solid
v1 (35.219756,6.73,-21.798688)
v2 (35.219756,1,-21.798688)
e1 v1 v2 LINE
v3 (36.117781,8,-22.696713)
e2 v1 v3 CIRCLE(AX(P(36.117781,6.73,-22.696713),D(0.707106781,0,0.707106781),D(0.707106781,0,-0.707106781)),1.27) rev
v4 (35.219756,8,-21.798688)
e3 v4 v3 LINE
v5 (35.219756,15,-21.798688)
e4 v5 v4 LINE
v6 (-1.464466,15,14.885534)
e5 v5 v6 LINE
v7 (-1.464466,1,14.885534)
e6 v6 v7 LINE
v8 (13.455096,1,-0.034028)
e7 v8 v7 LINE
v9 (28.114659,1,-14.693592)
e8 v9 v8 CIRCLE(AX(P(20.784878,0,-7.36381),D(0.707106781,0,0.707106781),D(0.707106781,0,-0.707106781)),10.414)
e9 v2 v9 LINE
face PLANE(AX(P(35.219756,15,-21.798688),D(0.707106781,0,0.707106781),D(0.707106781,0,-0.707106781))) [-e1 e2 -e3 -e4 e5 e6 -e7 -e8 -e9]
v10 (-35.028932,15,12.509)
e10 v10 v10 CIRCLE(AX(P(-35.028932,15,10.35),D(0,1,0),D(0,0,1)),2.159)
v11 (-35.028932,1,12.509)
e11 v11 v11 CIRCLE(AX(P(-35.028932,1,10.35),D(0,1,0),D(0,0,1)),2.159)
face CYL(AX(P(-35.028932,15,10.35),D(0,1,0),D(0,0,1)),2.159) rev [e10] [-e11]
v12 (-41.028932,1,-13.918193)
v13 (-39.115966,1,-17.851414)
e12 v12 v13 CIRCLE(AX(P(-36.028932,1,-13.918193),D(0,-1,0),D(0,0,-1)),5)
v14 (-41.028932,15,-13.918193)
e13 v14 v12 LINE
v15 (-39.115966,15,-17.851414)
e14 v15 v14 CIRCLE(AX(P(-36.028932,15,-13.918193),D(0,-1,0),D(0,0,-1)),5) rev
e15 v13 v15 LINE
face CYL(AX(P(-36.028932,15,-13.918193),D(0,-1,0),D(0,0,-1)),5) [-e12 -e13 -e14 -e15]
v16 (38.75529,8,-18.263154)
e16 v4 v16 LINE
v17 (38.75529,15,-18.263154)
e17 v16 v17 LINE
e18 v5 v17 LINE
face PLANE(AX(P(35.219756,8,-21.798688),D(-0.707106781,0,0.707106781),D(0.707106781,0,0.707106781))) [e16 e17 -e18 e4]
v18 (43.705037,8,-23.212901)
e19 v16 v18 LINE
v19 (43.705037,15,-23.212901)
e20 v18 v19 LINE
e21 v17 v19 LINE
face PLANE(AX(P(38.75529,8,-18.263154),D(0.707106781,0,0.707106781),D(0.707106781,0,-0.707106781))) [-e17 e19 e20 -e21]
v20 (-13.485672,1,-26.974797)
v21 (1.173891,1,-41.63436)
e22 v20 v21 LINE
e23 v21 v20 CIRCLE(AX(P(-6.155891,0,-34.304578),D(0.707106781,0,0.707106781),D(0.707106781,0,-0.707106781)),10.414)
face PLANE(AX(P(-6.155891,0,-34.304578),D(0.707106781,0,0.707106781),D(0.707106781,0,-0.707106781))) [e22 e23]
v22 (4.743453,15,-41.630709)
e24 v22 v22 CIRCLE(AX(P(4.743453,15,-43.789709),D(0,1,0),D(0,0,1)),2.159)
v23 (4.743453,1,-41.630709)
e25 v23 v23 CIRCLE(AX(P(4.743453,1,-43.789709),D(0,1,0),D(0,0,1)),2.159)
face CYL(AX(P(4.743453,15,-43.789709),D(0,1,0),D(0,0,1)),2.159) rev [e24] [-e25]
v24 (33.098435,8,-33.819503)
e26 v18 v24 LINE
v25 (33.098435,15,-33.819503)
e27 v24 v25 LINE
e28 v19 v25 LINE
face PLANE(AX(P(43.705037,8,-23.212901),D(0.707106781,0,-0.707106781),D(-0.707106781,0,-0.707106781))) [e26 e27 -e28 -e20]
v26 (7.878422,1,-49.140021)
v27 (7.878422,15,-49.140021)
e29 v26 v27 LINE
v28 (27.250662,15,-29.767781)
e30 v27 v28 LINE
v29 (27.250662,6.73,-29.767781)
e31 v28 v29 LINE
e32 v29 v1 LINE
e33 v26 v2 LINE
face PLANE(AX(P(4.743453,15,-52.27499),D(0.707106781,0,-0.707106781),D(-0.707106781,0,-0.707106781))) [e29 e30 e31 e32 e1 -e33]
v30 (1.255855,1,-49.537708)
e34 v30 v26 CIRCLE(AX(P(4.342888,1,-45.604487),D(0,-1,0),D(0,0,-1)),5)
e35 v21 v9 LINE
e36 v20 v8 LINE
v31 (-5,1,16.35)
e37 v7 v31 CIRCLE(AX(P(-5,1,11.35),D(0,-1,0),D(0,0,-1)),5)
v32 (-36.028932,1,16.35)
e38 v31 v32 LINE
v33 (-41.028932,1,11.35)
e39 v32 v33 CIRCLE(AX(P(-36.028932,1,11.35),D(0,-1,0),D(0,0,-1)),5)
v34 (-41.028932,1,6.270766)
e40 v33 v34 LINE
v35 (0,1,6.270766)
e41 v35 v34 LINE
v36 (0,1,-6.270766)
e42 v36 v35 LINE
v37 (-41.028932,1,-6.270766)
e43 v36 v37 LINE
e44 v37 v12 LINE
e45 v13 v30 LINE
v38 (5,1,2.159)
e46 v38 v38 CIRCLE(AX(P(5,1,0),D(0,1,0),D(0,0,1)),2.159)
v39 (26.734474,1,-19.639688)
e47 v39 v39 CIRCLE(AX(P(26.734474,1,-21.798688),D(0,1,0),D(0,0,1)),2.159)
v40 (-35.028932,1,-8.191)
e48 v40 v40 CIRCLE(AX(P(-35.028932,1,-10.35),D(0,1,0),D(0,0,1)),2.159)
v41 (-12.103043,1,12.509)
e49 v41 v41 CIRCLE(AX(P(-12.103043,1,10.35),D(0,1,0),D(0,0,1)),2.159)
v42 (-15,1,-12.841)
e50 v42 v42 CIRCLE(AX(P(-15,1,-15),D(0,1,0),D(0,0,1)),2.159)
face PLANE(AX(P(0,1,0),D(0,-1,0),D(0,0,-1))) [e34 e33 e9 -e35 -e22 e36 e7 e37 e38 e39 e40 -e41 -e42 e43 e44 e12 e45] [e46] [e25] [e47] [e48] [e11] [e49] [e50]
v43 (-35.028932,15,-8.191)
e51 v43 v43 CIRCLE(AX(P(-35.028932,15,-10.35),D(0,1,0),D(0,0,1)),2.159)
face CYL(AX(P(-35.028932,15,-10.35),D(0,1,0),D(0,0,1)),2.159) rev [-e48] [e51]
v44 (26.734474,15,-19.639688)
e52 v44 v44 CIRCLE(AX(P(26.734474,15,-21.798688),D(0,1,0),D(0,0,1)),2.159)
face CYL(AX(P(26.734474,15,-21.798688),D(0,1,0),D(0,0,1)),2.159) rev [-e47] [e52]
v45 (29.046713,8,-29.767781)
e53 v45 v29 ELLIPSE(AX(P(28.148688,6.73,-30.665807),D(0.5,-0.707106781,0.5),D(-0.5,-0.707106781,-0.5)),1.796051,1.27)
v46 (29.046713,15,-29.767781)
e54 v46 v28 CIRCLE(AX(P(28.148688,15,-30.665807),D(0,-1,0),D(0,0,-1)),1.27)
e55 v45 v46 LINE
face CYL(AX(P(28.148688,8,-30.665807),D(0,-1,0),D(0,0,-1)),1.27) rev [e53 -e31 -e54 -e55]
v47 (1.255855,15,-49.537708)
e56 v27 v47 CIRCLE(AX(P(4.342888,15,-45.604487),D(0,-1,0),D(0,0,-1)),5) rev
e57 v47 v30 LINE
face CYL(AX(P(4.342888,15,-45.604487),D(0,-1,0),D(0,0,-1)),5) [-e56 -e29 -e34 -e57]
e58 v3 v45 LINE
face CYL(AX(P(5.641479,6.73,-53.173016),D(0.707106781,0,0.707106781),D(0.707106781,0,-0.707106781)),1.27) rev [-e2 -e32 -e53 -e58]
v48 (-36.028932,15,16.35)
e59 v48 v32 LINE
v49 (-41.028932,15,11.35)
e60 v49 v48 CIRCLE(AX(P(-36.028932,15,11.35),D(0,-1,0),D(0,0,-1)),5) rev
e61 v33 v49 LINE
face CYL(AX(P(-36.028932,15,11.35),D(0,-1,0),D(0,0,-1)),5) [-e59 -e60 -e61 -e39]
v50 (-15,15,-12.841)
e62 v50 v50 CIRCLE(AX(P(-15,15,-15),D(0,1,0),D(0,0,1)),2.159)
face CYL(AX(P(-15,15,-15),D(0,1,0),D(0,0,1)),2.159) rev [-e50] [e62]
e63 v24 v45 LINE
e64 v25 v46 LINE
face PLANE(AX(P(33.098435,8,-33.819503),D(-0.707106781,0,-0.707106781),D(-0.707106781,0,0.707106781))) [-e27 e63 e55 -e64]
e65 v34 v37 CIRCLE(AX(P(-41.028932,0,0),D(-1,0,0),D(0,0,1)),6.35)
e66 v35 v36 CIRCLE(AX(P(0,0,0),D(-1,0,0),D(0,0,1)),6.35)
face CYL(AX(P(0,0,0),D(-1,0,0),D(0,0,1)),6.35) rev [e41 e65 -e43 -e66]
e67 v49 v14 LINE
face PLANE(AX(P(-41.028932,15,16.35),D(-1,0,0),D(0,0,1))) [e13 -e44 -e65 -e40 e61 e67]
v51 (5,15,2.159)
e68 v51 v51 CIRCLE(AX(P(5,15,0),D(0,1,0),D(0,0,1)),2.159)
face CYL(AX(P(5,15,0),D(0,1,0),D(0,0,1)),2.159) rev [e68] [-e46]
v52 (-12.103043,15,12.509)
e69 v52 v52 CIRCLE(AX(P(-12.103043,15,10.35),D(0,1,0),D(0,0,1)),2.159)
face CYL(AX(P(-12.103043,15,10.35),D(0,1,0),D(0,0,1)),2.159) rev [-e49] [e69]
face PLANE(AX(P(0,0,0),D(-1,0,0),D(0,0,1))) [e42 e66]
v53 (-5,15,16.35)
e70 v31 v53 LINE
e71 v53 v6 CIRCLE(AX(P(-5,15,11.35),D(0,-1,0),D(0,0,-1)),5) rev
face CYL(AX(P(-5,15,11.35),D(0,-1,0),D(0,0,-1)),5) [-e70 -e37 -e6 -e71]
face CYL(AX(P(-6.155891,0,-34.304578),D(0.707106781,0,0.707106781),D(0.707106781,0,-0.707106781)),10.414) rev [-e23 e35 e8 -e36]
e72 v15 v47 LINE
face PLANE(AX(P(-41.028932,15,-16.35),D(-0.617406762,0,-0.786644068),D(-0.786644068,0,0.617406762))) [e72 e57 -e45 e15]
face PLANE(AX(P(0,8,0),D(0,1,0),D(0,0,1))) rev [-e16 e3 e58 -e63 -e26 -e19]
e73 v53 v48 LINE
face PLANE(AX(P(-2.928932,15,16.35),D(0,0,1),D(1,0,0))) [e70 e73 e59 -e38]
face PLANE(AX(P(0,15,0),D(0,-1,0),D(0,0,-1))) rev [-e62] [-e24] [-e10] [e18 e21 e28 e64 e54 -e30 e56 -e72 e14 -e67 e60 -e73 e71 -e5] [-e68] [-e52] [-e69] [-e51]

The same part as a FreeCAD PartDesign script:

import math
import FreeCAD as App
import Part
import Sketcher

V = App.Vector
Q = App.Units.Quantity


def edges_at(feature, points):
    """Names of the edges that pass closest to the given points."""
    edges = feature.Shape.Edges
    near = lambda p: min(range(len(edges)), key=lambda i: edges[i].distToShape(Part.Vertex(*p))[0])
    return sorted({f"Edge{near(p) + 1}" for p in points})

doc = App.newDocument("Part")
body = doc.addObject("PartDesign::Body", "Body")

# Sketch on XZ plane
sketch1 = body.newObject("Sketcher::SketchObject", "Sketch")
sketch1.AttachmentSupport = (doc.getObject("XZ_Plane"), [""])
sketch1.MapMode = "FlatFace"
sketch1.AttachmentOffset = App.Placement(V(0, 0, -1), App.Rotation())
sketch1.addGeometry([
    Part.LineSegment(V(5, -52, 0), V(35, -22, 0)),  # 0
    Part.LineSegment(V(35, -22, 0), V(-3, 16, 0)),  # 1
    Part.LineSegment(V(-3, 16, 0), V(-41, 16, 0)),  # 2
    Part.LineSegment(V(-41, 16, 0), V(-41, -16, 0)),  # 3
    Part.LineSegment(V(-41, -16, 0), V(5, -52, 0)),  # 4
], False)
sketch1.addConstraint([
    Sketcher.Constraint("Coincident", 0, 2, 1, 1),
    Sketcher.Constraint("Coincident", 1, 2, 2, 1),
    Sketcher.Constraint("Coincident", 2, 2, 3, 1),
    Sketcher.Constraint("Coincident", 3, 2, 4, 1),
    Sketcher.Constraint("Coincident", 4, 2, 0, 1),
    Sketcher.Constraint("Horizontal", 2),
    Sketcher.Constraint("Vertical", 3),
    Sketcher.Constraint("Perpendicular", 0, 1),
    Sketcher.Constraint("Angle", 0, Q("45 deg")),
    Sketcher.Constraint("DistanceX", 2, 2, 2, 1, Q("38.1 mm")),
    Sketcher.Constraint("DistanceY", 3, 2, 3, 1, Q("32.7 mm")),
    Sketcher.Constraint("Distance", 0, Q("43.1 mm")),
    Sketcher.Constraint("DistanceY", -1, 1, 1, 2, Q("16.35 mm")),
    Sketcher.Constraint("Distance", 1, Q("53.950392 mm")),
    Sketcher.Constraint("DistanceX", -1, 1, 0, 2, Q("35.219756 mm")),
])
pad1 = body.newObject("PartDesign::Pad", "Pad")
pad1.Profile = sketch1
pad1.Length = 14
pad1.Reversed = True

# Sketch on XZ plane
sketch2 = body.newObject("Sketcher::SketchObject", "Sketch001")
sketch2.AttachmentSupport = (doc.getObject("XZ_Plane"), [""])
sketch2.MapMode = "FlatFace"
sketch2.AttachmentOffset = App.Placement(V(0, 0, -15), App.Rotation())
sketch2.addGeometry([
    Part.LineSegment(V(39, -18, 0), V(44, -23, 0)),
    Part.LineSegment(V(44, -23, 0), V(33, -34, 0)),
    Part.LineSegment(V(33, -34, 0), V(28, -29, 0)),
    Part.LineSegment(V(28, -29, 0), V(39, -18, 0)),
], False)
sketch2.addConstraint([
    Sketcher.Constraint("Coincident", 0, 2, 1, 1),
    Sketcher.Constraint("Coincident", 1, 2, 2, 1),
    Sketcher.Constraint("Coincident", 2, 2, 3, 1),
    Sketcher.Constraint("Coincident", 3, 2, 0, 1),
    Sketcher.Constraint("Perpendicular", 0, 1),
    Sketcher.Constraint("Perpendicular", 1, 2),
    Sketcher.Constraint("Perpendicular", 2, 3),
    Sketcher.Constraint("Angle", 0, Q("-45 deg")),
    Sketcher.Constraint("Distance", 0, Q("7 mm")),
    Sketcher.Constraint("Distance", 1, Q("15 mm")),
    Sketcher.Constraint("DistanceY", 0, 2, -1, 1, Q("23.212901 mm")),
    Sketcher.Constraint("DistanceX", -1, 1, 3, 2, Q("38.75529 mm")),
])
pad2 = body.newObject("PartDesign::Pad", "Pad001")
pad2.Profile = sketch2
pad2.Length = 7

# Sketch on an angled plane
sketch3 = body.newObject("Sketcher::SketchObject", "Sketch002")
sketch3.Placement = App.Placement(V(6.710534, 0, 6.710534), App.Rotation(V(0.707106781, 0, -0.707106781), V(0, 0.999999999, 0), V(0.707106781, 0, 0.707106781), "ZXY"))
sketch3.addGeometry([
    Part.LineSegment(V(10, 1, 0), V(30, 1, 0)),
    Part.ArcOfCircle(Part.Circle(V(20, 0, 0), V(0, 0, 1), 10), math.radians(6), math.radians(174)),
], False)
sketch3.addConstraint([
    Sketcher.Constraint("Coincident", 0, 1, 1, 2),
    Sketcher.Constraint("Coincident", 1, 1, 0, 2),
    Sketcher.Constraint("Horizontal", 0),
    Sketcher.Constraint("PointOnObject", 1, 3, -1),
    Sketcher.Constraint("DistanceY", -1, 1, 0, 1, Q("1 mm")),
    Sketcher.Constraint("Radius", 1, Q("10.414 mm")),
    Sketcher.Constraint("DistanceX", -1, 1, 1, 3, Q("19.904128 mm")),
])
pocket1 = body.newObject("PartDesign::Pocket", "Pocket")
pocket1.Profile = sketch3
pocket1.Length = 38.1

# Sketch on YZ plane
sketch4 = body.newObject("Sketcher::SketchObject", "Sketch003")
sketch4.AttachmentSupport = (doc.getObject("YZ_Plane"), [""])
sketch4.MapMode = "FlatFace"
sketch4.AttachmentOffset = App.Placement(V(0, 0, -41.028932), App.Rotation())
sketch4.addGeometry([
    Part.LineSegment(V(1, -6, 0), V(1, 6, 0)),
    Part.ArcOfCircle(Part.Circle(V(0, 0, 0), V(0, 0, 1), 6), math.radians(-81), math.radians(81)),
], False)
sketch4.addConstraint([
    Sketcher.Constraint("Coincident", 0, 1, 1, 1),
    Sketcher.Constraint("Coincident", 1, 2, 0, 2),
    Sketcher.Constraint("Vertical", 0),
    Sketcher.Constraint("Coincident", 1, 3, -1, 1),
    Sketcher.Constraint("Radius", 1, Q("6.35 mm")),
    Sketcher.Constraint("DistanceX", -1, 1, 0, 1, Q("1 mm")),
])
pocket2 = body.newObject("PartDesign::Pocket", "Pocket001")
pocket2.Profile = sketch4
pocket2.Length = 41.028932
pocket2.Reversed = True

# Sketch on XZ plane
sketch5 = body.newObject("Sketcher::SketchObject", "Sketch004")
sketch5.AttachmentSupport = (doc.getObject("XZ_Plane"), [""])
sketch5.MapMode = "FlatFace"
sketch5.AttachmentOffset = App.Placement(V(0, 0, -15), App.Rotation())
sketch5.addGeometry([
    Part.Circle(V(-35, 10.3, 0), V(0, 0, 1), 2.2),  # 0
    Part.Circle(V(5, 0, 0), V(0, 0, 1), 2.2),  # 1
    Part.Circle(V(-15, -15, 0), V(0, 0, 1), 2.2),  # 2
    Part.Circle(V(-12.1, 10.3, 0), V(0, 0, 1), 2.2),  # 3
    Part.Circle(V(-35, -10.3, 0), V(0, 0, 1), 2.2),  # 4
    Part.Circle(V(4.7, -43.8, 0), V(0, 0, 1), 2.2),  # 5
    Part.Circle(V(26.7, -21.8, 0), V(0, 0, 1), 2.2),  # 6
], False)
sketch5.addConstraint([
    Sketcher.Constraint("Equal", 0, 1),
    Sketcher.Constraint("Equal", 1, 2),
    Sketcher.Constraint("Equal", 2, 3),
    Sketcher.Constraint("Equal", 3, 4),
    Sketcher.Constraint("Equal", 4, 5),
    Sketcher.Constraint("Equal", 5, 6),
    Sketcher.Constraint("Symmetric", 0, 3, 4, 3, -1),
    Sketcher.Constraint("PointOnObject", 1, 3, -1),
    Sketcher.Constraint("Horizontal", 0, 3, 3, 3),
    Sketcher.Constraint("Diameter", 0, Q("4.318 mm")),
    Sketcher.Constraint("DistanceX", -1, 1, 1, 3, Q("5 mm")),
    Sketcher.Constraint("DistanceX", 2, 3, -1, 1, Q("15 mm")),
    Sketcher.Constraint("DistanceY", 2, 3, -1, 1, Q("15 mm")),
    Sketcher.Constraint("DistanceY", 4, 3, 0, 3, Q("20.7 mm")),
    Sketcher.Constraint("DistanceY", 5, 3, -1, 1, Q("43.789709 mm")),
    Sketcher.Constraint("DistanceX", 0, 3, 3, 3, Q("22.925889 mm")),
    Sketcher.Constraint("DistanceX", 5, 3, 6, 3, Q("21.991021 mm")),
    Sketcher.Constraint("DistanceY", 5, 3, 6, 3, Q("21.991021 mm")),
    Sketcher.Constraint("DistanceX", 0, 3, -1, 1, Q("35.028932 mm")),
    Sketcher.Constraint("DistanceX", -1, 1, 5, 3, Q("4.743453 mm")),
])
doc.recompute()
hole = body.newObject("PartDesign::Hole", "Hole")
hole.Profile = sketch5
hole.ThreadType = "None"
hole.Diameter = 4.318
hole.DepthType = "Dimension"
hole.Depth = 14
hole.DrillPoint = "Flat"
hole.Reversed = True
doc.recompute()

fillet = body.newObject("PartDesign::Fillet", "Fillet")
fillet.Base = (hole, edges_at(hole, [
    (-41.029, 8, -16.35),
    (-41.029, 8, 16.35),
    (-2.929, 8, 16.35),
    (4.743, 8, -52.275),
]))
fillet.Radius = 5
doc.recompute()

fillet2 = body.newObject("PartDesign::Fillet", "Fillet001")
fillet2.Base = (fillet, edges_at(fillet, [(28.149, 11.5, -28.87)]))
fillet2.Radius = 1.27
doc.recompute()

fillet3 = body.newObject("PartDesign::Fillet", "Fillet002")
fillet3.Base = (fillet2, edges_at(fillet2, [(31.684, 8, -25.334)]))
fillet3.Radius = 1.27

doc.recompute()
